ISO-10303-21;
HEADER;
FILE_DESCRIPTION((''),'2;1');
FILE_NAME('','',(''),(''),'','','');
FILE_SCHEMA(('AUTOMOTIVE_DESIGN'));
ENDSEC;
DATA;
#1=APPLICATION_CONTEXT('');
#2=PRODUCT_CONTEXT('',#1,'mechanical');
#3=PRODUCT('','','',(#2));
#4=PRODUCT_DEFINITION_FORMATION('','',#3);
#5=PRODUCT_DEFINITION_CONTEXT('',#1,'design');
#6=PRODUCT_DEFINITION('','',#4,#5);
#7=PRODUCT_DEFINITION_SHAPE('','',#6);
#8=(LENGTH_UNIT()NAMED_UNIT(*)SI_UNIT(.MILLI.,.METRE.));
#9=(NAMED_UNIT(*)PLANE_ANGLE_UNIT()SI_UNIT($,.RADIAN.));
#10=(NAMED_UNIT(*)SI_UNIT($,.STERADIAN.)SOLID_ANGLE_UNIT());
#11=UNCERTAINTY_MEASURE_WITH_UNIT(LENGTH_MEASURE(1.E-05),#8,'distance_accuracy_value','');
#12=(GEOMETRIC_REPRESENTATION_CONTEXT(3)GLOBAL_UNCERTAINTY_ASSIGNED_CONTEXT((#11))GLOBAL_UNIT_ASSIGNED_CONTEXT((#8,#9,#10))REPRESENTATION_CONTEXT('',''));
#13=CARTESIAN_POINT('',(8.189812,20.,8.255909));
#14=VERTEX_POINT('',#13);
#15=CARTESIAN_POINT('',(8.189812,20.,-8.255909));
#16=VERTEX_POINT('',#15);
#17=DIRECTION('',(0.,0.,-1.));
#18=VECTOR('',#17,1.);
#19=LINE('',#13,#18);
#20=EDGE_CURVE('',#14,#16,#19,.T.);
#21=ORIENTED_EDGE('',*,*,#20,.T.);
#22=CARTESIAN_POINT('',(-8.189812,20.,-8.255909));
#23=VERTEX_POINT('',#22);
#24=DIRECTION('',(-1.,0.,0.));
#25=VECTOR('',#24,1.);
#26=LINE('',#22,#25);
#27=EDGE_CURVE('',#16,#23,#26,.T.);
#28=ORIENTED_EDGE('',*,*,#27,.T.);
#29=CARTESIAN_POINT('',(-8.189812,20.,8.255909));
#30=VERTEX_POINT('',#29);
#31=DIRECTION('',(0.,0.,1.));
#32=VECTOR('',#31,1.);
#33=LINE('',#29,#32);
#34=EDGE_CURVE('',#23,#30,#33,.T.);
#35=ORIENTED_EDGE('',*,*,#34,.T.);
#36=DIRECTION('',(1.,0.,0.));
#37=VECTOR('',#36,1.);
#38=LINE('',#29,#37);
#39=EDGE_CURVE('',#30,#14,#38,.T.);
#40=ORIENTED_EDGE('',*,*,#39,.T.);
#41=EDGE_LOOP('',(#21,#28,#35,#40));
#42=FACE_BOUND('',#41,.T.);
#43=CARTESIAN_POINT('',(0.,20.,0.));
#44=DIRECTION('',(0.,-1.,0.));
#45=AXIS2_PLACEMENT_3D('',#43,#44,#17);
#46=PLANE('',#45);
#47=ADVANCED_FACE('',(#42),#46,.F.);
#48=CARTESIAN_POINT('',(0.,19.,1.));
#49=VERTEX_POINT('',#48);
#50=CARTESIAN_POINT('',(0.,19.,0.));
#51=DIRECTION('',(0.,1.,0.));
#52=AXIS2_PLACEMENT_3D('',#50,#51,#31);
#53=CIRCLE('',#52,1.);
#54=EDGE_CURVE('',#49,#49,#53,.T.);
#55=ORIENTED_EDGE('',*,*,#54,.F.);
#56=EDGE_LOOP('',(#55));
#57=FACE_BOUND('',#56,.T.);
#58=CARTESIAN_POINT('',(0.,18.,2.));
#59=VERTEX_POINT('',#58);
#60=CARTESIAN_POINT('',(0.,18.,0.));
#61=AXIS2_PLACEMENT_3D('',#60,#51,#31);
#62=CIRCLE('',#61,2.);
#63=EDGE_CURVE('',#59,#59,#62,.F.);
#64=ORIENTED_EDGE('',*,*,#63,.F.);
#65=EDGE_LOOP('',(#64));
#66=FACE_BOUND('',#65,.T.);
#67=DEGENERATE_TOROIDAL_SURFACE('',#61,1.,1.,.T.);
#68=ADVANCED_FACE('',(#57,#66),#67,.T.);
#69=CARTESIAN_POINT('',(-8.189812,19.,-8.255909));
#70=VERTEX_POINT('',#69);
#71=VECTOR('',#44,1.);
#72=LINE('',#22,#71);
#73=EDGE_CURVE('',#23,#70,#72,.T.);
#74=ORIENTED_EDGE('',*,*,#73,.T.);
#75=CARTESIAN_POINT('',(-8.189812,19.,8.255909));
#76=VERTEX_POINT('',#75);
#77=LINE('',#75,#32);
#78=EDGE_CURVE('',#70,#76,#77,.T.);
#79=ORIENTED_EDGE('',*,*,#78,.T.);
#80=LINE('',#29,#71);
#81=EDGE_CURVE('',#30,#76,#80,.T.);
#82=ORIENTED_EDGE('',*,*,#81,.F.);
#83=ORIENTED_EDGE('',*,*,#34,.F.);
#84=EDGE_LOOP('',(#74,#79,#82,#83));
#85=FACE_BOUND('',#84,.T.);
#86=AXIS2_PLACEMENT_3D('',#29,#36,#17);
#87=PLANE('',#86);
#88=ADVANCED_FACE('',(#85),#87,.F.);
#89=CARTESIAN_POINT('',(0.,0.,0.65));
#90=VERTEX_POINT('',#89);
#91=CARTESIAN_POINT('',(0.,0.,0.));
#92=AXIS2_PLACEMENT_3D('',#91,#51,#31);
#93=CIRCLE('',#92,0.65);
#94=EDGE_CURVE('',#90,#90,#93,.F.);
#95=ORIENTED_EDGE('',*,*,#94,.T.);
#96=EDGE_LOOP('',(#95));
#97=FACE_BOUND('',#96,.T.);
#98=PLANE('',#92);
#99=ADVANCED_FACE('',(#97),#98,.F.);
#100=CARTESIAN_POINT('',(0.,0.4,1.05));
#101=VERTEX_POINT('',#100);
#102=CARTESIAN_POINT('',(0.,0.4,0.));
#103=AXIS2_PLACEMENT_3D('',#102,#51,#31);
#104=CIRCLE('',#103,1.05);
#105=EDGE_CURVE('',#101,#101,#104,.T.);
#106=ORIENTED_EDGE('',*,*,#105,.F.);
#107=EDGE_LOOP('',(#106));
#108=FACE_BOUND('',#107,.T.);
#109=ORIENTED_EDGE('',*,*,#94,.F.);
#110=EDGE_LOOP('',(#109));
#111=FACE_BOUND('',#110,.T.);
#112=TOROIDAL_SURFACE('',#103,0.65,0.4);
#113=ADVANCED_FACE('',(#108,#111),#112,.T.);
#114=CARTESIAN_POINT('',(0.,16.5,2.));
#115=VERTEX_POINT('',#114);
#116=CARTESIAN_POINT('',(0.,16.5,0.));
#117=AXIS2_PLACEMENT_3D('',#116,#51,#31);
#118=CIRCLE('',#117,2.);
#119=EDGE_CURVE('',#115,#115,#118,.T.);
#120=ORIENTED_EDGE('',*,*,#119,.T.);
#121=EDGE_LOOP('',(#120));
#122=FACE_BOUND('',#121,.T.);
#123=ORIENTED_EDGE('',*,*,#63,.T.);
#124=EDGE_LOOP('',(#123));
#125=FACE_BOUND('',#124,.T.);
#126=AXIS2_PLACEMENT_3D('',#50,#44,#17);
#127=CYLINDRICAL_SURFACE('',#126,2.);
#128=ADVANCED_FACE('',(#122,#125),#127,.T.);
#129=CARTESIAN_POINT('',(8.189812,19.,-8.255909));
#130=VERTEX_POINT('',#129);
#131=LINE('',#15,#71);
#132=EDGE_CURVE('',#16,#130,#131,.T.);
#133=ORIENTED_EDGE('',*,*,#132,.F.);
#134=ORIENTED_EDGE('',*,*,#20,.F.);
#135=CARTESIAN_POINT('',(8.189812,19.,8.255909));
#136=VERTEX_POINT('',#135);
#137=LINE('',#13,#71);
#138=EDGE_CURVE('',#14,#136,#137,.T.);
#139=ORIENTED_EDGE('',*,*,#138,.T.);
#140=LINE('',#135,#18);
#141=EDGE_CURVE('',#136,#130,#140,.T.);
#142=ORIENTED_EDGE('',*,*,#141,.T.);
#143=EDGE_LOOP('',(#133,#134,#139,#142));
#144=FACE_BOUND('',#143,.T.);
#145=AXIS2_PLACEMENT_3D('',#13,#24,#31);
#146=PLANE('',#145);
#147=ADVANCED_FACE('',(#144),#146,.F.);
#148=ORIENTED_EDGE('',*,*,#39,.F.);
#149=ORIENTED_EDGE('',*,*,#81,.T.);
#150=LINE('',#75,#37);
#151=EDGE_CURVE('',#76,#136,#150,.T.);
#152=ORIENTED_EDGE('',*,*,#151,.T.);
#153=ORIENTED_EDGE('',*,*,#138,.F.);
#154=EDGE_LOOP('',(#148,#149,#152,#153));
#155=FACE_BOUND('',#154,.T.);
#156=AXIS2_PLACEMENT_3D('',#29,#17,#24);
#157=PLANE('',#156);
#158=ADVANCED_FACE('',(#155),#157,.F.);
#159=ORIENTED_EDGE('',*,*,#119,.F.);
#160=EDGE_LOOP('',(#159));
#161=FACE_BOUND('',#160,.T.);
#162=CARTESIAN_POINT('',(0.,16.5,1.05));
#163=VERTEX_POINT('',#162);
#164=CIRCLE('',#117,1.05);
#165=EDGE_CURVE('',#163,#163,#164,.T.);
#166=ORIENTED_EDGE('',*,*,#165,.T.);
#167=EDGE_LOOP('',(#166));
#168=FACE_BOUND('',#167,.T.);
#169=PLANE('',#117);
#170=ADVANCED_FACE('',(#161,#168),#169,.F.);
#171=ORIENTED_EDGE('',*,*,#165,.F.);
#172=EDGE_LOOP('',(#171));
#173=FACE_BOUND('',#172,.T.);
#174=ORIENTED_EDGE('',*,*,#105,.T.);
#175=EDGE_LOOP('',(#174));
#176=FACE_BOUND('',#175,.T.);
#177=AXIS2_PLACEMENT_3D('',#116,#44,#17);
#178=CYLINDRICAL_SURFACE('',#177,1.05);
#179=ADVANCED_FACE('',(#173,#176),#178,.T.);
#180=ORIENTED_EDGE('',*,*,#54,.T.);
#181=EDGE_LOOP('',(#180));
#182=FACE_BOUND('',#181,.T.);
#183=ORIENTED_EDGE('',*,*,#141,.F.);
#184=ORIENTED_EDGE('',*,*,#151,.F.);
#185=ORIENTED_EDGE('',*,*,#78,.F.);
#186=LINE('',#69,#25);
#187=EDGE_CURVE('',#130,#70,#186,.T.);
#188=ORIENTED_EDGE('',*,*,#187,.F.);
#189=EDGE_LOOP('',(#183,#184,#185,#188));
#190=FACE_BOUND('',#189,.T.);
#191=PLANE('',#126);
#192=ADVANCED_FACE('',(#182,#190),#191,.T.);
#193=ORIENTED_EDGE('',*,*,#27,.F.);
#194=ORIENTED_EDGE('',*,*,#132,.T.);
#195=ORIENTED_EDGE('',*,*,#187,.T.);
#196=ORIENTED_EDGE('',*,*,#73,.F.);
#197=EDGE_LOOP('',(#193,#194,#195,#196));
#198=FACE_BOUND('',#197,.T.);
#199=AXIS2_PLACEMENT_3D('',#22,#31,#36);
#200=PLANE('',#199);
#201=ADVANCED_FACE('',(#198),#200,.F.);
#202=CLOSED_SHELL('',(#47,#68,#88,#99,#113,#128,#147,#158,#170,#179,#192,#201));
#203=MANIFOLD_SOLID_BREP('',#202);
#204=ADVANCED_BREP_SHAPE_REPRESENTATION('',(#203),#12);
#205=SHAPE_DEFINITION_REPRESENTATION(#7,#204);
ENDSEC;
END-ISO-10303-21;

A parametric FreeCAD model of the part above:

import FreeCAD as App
import Part
import Sketcher
from FreeCAD import Vector
Q = App.Units.Quantity


def edges_at(feature, points):
    """Names of the edges that pass closest to the given points."""
    edges = feature.Shape.Edges
    near = lambda p: min(range(len(edges)), key=lambda i: edges[i].distToShape(Part.Vertex(*p))[0])
    return sorted({f"Edge{near(p) + 1}" for p in points})


def add_polygon(sketch, points):
    """Adds a closed chain of lines whose ends are joined by coincident constraints."""
    first, n = sketch.GeometryCount, len(points)
    for a, b in zip(points, points[1:] + points[:1]):
        sketch.addGeometry(Part.LineSegment(App.Vector(*a, 0), App.Vector(*b, 0)), False)
    for i in range(n):
        sketch.addConstraint(Sketcher.Constraint("Coincident", first + i, 2, first + (i + 1) % n, 1))

doc = App.newDocument("Part")
body = doc.addObject("PartDesign::Body", "Body")

sketch1 = body.newObject("Sketcher::SketchObject", "Sketch")
sketch1.AttachmentSupport = (doc.getObject("XZ_Plane"), [""])
sketch1.MapMode = "FlatFace"
sketch1.addGeometry(Part.Circle(Vector(0, 0, 0), Vector(0, 0, 1), 1.05), False)
sketch1.addConstraint(Sketcher.Constraint("Coincident", 0, 3, -1, 1))
sketch1.addConstraint(Sketcher.Constraint("Diameter", 0, Q("2.1 mm")))
pad1 = body.newObject("PartDesign::Pad", "Pad")
pad1.Profile = sketch1
pad1.Length = 16.5
pad1.Reversed = True

sketch2 = body.newObject("Sketcher::SketchObject", "Sketch001")
sketch2.AttachmentSupport = (doc.getObject("XZ_Plane"), [""])
sketch2.MapMode = "FlatFace"
sketch2.AttachmentOffset = App.Placement(Vector(0, 0, -16.5), App.Rotation())
sketch2.addGeometry(Part.Circle(Vector(0, 0, 0), Vector(0, 0, 1), 2), False)
sketch2.addConstraint(Sketcher.Constraint("Coincident", 0, 3, -1, 1))
sketch2.addConstraint(Sketcher.Constraint("Diameter", 0, Q("4 mm")))
pad2 = body.newObject("PartDesign::Pad", "Pad001")
pad2.Profile = sketch2
pad2.Length = 2.5
pad2.Reversed = True
doc.recompute()

fillet = body.newObject("PartDesign::Fillet", "Fillet")
fillet.Base = (pad2, edges_at(pad2, [(-1.05, 0, 0)]))
fillet.Radius = 0.4
doc.recompute()

fillet2 = body.newObject("PartDesign::Fillet", "Fillet001")
fillet2.Base = (fillet, edges_at(fillet, [(-2, 19, 0)]))
fillet2.Radius = 1

sketch3 = body.newObject("Sketcher::SketchObject", "Sketch002")
sketch3.AttachmentSupport = (doc.getObject("XZ_Plane"), [""])
sketch3.MapMode = "FlatFace"
sketch3.AttachmentOffset = App.Placement(Vector(0, 0, -19), App.Rotation())
add_polygon(sketch3, [(-8.189812, -8.255909), (-8.189812, 8.255909), (8.189812, 8.255909), (8.189812, -8.255909)])
sketch3.addConstraint(Sketcher.Constraint("Vertical", 0))
sketch3.addConstraint(Sketcher.Constraint("Horizontal", 1))
sketch3.addConstraint(Sketcher.Constraint("Vertical", 2))
sketch3.addConstraint(Sketcher.Constraint("Horizontal", 3))
sketch3.addConstraint(Sketcher.Constraint("Symmetric", 0, 2, 2, 2, -1, 1))
sketch3.addConstraint(Sketcher.Constraint("DistanceX", 1, 1, 1, 2, Q("16.379625 mm")))
sketch3.addConstraint(Sketcher.Constraint("DistanceY", 0, 1, 0, 2, Q("16.511818 mm")))
pad3 = body.newObject("PartDesign::Pad", "Pad002")
pad3.Profile = sketch3
pad3.Length = 1
pad3.Reversed = True

doc.recompute()
